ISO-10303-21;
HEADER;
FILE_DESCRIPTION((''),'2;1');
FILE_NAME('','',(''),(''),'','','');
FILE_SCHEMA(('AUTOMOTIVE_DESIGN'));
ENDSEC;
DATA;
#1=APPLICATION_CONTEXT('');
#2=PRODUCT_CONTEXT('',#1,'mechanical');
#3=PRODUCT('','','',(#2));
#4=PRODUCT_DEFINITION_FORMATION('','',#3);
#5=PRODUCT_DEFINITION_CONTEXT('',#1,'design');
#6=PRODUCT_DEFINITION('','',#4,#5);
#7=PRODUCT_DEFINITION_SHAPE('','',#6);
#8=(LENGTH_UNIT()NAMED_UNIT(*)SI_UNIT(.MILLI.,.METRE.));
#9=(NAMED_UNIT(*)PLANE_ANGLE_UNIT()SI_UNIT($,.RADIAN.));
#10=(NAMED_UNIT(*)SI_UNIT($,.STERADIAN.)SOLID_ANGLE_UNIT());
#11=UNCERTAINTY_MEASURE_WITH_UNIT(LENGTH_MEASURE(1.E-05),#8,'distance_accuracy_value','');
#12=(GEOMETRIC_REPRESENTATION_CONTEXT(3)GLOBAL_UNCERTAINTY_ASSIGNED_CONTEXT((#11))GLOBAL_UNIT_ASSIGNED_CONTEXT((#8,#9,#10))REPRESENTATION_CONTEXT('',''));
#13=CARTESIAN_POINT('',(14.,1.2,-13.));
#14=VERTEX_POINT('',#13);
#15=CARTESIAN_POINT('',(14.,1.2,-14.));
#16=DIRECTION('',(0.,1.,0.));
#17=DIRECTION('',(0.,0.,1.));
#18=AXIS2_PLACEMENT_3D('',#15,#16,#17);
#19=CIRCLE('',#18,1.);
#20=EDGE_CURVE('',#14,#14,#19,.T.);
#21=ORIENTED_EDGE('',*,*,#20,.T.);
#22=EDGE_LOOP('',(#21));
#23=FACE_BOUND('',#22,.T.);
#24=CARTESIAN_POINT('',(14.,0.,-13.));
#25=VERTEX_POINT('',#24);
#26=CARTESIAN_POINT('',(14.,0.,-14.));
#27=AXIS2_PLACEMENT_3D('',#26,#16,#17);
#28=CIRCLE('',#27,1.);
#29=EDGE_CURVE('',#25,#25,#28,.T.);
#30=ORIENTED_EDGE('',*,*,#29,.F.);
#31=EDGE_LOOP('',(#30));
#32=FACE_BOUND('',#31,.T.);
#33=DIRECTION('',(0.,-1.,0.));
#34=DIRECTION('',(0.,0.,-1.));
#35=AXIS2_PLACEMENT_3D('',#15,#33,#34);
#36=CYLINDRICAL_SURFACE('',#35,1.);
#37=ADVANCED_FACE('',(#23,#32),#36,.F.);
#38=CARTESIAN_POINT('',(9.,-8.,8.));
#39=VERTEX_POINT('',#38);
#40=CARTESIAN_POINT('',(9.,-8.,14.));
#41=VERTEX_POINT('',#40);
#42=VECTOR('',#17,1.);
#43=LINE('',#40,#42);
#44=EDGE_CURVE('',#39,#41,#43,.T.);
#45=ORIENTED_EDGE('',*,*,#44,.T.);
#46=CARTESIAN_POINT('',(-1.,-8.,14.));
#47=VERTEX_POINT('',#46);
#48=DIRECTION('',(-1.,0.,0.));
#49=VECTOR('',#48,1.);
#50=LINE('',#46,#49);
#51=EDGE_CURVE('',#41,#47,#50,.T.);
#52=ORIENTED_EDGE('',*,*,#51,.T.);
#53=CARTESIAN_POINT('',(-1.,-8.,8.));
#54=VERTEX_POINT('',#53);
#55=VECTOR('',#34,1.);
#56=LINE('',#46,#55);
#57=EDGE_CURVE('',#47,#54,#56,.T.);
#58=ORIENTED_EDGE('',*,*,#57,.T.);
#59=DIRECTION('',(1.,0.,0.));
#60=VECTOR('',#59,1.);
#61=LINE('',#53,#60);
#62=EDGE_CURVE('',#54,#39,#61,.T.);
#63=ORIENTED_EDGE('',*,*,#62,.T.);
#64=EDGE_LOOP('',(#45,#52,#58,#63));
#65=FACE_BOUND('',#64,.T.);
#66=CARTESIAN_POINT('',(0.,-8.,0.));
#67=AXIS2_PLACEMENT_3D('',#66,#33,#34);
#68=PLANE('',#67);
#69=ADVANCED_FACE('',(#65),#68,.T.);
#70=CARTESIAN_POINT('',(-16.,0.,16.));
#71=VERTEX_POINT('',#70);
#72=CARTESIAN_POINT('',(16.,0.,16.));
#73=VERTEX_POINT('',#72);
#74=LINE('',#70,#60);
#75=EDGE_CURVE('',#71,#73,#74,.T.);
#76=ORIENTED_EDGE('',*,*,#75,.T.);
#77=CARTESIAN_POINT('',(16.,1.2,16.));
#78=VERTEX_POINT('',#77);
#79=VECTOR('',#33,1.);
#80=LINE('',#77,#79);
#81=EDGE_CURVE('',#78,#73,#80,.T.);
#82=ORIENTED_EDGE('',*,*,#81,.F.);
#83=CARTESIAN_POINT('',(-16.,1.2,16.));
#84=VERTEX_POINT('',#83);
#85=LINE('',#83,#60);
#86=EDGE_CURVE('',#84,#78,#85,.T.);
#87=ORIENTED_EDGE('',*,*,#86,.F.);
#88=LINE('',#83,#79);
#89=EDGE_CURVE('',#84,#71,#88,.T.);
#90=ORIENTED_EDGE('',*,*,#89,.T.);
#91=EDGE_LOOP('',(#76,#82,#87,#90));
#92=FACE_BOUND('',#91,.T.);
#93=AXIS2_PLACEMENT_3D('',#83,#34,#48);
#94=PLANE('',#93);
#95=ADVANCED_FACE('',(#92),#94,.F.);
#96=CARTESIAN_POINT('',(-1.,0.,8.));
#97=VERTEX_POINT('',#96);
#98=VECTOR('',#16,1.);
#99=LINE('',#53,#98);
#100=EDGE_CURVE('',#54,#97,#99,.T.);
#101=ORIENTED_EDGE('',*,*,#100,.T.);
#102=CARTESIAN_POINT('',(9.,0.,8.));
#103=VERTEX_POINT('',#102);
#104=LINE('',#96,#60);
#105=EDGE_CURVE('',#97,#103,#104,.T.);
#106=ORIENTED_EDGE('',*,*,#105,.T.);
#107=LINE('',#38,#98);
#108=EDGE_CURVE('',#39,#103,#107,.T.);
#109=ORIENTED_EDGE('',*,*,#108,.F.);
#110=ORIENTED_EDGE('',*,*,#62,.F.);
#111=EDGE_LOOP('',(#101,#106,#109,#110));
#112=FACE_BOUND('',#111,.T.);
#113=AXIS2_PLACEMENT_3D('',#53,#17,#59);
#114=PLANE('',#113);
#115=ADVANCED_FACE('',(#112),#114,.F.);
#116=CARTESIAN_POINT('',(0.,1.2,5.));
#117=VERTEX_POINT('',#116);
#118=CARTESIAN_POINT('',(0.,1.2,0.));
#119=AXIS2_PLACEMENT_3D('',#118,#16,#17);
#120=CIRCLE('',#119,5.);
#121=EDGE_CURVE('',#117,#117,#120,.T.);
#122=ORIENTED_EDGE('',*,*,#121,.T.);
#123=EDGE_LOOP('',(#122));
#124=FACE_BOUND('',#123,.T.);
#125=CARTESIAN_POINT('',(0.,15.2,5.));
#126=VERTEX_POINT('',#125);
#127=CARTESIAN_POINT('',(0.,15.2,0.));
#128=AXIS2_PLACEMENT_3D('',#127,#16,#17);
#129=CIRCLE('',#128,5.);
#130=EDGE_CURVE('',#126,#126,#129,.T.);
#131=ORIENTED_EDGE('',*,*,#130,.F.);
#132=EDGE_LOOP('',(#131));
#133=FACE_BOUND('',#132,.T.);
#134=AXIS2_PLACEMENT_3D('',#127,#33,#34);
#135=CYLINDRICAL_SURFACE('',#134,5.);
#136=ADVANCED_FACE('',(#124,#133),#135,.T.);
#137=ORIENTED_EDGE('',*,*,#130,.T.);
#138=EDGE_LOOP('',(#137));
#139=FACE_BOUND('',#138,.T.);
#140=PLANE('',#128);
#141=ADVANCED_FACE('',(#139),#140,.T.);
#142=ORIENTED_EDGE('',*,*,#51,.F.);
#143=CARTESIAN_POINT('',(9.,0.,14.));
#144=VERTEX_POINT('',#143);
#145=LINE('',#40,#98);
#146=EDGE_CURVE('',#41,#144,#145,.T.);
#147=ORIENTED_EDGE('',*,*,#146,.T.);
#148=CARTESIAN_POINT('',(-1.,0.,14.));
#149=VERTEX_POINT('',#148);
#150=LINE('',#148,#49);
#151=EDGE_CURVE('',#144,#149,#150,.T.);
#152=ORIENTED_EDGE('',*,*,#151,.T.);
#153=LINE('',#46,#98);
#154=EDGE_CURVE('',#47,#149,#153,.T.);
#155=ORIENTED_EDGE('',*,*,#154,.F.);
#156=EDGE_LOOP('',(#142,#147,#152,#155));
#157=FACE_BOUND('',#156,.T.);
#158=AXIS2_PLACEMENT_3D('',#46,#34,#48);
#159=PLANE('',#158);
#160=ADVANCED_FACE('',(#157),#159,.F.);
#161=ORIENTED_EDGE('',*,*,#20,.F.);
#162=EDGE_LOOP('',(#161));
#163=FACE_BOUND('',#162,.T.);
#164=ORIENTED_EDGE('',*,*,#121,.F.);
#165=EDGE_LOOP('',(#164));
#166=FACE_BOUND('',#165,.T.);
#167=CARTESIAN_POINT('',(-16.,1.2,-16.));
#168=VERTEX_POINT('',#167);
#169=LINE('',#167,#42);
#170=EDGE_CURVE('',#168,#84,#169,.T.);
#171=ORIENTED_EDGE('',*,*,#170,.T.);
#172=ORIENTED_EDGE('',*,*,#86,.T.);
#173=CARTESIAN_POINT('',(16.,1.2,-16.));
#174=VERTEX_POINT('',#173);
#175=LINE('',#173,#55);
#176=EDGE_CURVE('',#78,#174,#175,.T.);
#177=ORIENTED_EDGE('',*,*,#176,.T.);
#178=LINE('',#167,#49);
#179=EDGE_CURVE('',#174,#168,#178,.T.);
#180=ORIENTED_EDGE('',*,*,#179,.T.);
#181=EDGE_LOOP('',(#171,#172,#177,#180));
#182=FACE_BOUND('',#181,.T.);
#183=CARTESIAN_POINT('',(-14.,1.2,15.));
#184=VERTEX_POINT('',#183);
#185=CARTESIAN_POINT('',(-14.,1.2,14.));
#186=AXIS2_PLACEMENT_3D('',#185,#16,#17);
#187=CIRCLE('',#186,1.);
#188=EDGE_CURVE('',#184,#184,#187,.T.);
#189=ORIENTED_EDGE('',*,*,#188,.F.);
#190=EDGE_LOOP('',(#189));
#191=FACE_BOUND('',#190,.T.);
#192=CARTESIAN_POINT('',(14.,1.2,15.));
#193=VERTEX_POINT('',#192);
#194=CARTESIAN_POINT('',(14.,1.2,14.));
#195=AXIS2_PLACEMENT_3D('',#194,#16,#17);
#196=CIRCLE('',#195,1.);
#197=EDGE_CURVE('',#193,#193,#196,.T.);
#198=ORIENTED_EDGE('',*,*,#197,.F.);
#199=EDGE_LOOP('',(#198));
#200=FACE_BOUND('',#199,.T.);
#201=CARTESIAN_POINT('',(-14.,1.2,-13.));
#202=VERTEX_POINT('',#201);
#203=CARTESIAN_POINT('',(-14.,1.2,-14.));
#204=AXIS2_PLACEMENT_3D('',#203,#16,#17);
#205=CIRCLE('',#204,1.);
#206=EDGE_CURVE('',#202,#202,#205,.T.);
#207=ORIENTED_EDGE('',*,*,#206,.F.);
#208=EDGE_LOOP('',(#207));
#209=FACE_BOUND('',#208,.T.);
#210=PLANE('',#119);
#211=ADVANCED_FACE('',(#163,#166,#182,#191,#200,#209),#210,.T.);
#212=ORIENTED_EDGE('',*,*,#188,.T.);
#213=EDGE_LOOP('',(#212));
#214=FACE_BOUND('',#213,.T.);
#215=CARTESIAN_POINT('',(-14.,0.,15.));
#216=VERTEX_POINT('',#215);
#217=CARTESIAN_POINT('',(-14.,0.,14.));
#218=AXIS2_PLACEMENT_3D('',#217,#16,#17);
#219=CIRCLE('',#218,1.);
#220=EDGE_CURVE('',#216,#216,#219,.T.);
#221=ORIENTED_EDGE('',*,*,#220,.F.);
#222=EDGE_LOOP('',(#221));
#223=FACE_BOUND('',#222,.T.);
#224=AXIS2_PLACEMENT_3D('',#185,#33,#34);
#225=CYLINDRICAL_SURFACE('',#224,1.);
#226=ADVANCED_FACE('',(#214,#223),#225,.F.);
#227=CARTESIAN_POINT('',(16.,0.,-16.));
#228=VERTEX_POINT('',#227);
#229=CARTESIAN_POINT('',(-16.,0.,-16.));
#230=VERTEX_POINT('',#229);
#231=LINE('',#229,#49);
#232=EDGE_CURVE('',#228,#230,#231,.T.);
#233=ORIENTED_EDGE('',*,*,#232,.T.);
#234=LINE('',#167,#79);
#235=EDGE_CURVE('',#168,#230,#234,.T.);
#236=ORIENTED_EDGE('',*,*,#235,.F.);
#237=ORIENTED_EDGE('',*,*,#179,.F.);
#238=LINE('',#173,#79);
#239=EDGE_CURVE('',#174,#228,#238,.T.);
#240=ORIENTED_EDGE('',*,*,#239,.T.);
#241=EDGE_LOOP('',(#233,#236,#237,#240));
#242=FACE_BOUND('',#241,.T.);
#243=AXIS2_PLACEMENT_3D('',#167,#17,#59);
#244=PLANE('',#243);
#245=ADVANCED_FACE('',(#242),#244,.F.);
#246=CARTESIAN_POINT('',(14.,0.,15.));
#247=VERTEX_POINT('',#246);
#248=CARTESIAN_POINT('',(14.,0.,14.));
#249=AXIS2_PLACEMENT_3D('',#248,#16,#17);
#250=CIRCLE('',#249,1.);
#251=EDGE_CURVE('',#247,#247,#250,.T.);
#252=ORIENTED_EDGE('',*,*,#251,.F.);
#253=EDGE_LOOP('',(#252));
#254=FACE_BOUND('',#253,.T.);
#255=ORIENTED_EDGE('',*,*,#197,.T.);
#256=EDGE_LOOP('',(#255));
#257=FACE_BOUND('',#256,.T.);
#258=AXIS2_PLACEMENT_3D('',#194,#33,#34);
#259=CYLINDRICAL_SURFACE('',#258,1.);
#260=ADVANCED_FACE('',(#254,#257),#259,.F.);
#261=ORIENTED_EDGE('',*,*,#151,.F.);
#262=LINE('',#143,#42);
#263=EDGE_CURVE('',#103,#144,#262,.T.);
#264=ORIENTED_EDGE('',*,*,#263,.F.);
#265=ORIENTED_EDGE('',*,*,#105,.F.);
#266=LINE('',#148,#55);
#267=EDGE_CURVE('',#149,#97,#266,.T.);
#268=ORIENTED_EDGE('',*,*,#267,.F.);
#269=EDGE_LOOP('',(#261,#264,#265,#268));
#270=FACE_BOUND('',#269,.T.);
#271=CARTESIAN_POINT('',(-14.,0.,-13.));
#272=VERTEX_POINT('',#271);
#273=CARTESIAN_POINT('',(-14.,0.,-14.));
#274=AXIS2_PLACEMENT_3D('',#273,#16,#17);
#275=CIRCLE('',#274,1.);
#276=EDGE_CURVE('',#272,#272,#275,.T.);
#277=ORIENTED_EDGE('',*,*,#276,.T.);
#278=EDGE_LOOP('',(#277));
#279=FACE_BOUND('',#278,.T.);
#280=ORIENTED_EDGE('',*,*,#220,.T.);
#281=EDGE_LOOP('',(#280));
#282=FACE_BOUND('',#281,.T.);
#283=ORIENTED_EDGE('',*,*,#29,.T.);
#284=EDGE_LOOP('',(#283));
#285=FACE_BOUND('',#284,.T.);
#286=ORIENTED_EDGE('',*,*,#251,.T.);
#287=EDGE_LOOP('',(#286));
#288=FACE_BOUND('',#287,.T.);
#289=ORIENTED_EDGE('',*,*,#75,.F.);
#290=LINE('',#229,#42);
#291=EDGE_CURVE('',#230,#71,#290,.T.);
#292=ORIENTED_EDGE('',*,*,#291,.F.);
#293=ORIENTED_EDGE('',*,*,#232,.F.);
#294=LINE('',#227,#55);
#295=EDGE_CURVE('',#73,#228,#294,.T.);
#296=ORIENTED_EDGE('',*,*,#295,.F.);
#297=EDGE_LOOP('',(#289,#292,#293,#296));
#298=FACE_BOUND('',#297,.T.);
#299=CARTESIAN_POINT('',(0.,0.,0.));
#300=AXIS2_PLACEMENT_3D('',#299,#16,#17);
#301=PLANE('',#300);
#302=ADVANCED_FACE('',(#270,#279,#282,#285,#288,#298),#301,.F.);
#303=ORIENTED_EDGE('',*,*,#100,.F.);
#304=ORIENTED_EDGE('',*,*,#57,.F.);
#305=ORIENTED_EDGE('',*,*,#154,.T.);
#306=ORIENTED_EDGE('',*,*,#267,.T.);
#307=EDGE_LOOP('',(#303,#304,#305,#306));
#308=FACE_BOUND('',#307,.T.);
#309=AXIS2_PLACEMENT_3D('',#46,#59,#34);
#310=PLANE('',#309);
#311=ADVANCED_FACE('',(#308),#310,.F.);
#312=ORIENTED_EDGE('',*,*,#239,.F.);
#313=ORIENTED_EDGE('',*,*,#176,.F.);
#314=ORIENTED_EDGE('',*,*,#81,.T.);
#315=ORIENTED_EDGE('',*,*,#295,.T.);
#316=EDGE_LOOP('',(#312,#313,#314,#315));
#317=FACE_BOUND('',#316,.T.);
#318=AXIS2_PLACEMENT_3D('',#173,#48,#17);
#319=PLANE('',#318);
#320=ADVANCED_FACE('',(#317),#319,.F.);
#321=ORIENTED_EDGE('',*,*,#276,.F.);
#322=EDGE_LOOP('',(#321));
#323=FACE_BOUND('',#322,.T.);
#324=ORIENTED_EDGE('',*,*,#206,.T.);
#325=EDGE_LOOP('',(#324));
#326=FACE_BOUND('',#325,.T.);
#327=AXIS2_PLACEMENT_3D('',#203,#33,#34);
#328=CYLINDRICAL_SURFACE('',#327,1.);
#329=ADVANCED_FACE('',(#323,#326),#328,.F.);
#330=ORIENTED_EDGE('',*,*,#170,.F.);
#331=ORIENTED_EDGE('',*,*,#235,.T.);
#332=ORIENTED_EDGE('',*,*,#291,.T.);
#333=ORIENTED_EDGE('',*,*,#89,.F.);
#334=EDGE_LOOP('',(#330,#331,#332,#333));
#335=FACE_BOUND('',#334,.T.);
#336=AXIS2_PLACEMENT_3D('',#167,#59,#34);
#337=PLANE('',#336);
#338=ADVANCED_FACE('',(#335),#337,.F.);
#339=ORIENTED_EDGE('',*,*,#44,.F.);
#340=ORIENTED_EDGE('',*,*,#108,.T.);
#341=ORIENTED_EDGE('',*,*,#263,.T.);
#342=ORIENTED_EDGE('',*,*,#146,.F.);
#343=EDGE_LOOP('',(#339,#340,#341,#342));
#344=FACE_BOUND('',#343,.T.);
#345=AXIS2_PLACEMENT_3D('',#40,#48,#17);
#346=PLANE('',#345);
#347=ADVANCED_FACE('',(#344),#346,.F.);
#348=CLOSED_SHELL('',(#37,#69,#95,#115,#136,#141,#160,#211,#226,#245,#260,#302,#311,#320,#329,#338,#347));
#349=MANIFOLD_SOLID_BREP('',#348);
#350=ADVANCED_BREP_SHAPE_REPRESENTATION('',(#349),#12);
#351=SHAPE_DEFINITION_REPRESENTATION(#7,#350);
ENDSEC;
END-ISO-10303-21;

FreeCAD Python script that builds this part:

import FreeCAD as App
import Part
import Sketcher
from FreeCAD import Vector

doc = App.newDocument("Part")
body = doc.addObject("PartDesign::Body", "Body")

# Sketch on XZ plane
sketch1 = body.newObject("Sketcher::SketchObject", "Sketch")
sketch1.AttachmentSupport = (doc.getObject("XZ_Plane"), [""])
sketch1.MapMode = "FlatFace"
sketch1.addGeometry(Part.LineSegment(Vector(-16, -16, 0), Vector(-16, 16, 0)), False)
sketch1.addGeometry(Part.LineSegment(Vector(-16, 16, 0), Vector(16, 16, 0)), False)
sketch1.addGeometry(Part.LineSegment(Vector(16, 16, 0), Vector(16, -16, 0)), False)
sketch1.addGeometry(Part.LineSegment(Vector(16, -16, 0), Vector(-16, -16, 0)), False)
sketch1.addGeometry(Part.Circle(Vector(-14, 14, 0), Vector(0, 0, 1), 1), False)
sketch1.addGeometry(Part.Circle(Vector(14, 14, 0), Vector(0, 0, 1), 1), False)
sketch1.addGeometry(Part.Circle(Vector(-14, -14, 0), Vector(0, 0, 1), 1), False)
sketch1.addGeometry(Part.Circle(Vector(14, -14, 0), Vector(0, 0, 1), 1), False)
sketch1.addConstraint(Sketcher.Constraint("Coincident", 0, 2, 1, 1))
sketch1.addConstraint(Sketcher.Constraint("Coincident", 1, 2, 2, 1))
sketch1.addConstraint(Sketcher.Constraint("Coincident", 2, 2, 3, 1))
sketch1.addConstraint(Sketcher.Constraint("Coincident", 3, 2, 0, 1))
sketch1.addConstraint(Sketcher.Constraint("Vertical", 0))
sketch1.addConstraint(Sketcher.Constraint("Horizontal", 1))
sketch1.addConstraint(Sketcher.Constraint("Vertical", 2))
sketch1.addConstraint(Sketcher.Constraint("Horizontal", 3))
sketch1.addConstraint(Sketcher.Constraint("Equal", 4, 5))
sketch1.addConstraint(Sketcher.Constraint("Equal", 5, 6))
sketch1.addConstraint(Sketcher.Constraint("Equal", 6, 7))
sketch1.addConstraint(Sketcher.Constraint("Symmetric", 5, 3, 6, 3, -1, 1))
sketch1.addConstraint(Sketcher.Constraint("Symmetric", 4, 3, 7, 3, -1, 1))
sketch1.addConstraint(Sketcher.Constraint("Symmetric", 0, 2, 2, 2, -1, 1))
sketch1.addConstraint(Sketcher.Constraint("Symmetric", 4, 3, 5, 3, -2))
sketch1.addConstraint(Sketcher.Constraint("Equal", 3, 0))
sketch1.addConstraint(Sketcher.Constraint("Diameter", 4, 2.0))
sketch1.addConstraint(Sketcher.Constraint("DistanceX", 1, 1, 1, 2, 32.0))
sketch1.addConstraint(Sketcher.Constraint("DistanceX", 4, 3, -1, 1, 14.0))
sketch1.addConstraint(Sketcher.Constraint("DistanceY", -1, 1, 4, 3, 14.0))
pad1 = body.newObject("PartDesign::Pad", "Pad")
pad1.Profile = sketch1
pad1.Length = 1.2
pad1.Reversed = True

# Sketch on XZ plane
sketch2 = body.newObject("Sketcher::SketchObject", "Sketch001")
sketch2.AttachmentSupport = (doc.getObject("XZ_Plane"), [""])
sketch2.MapMode = "FlatFace"
sketch2.AttachmentOffset = App.Placement(Vector(0, 0, -1.2), App.Rotation())
sketch2.addGeometry(Part.Circle(Vector(0, 0, 0), Vector(0, 0, 1), 5), False)
sketch2.addConstraint(Sketcher.Constraint("Coincident", 0, 3, -1, 1))
sketch2.addConstraint(Sketcher.Constraint("Diameter", 0, 10.0))
pad2 = body.newObject("PartDesign::Pad", "Pad001")
pad2.Profile = sketch2
pad2.Length = 14
pad2.Reversed = True

# Sketch on XZ plane
sketch3 = body.newObject("Sketcher::SketchObject", "Sketch002")
sketch3.AttachmentSupport = (doc.getObject("XZ_Plane"), [""])
sketch3.MapMode = "FlatFace"
sketch3.addGeometry(Part.LineSegment(Vector(-1, 14, 0), Vector(-1, 8, 0)), False)
sketch3.addGeometry(Part.LineSegment(Vector(-1, 8, 0), Vector(9, 8, 0)), False)
sketch3.addGeometry(Part.LineSegment(Vector(9, 8, 0), Vector(9, 14, 0)), False)
sketch3.addGeometry(Part.LineSegment(Vector(9, 14, 0), Vector(-1, 14, 0)), False)
sketch3.addConstraint(Sketcher.Constraint("Coincident", 0, 2, 1, 1))
sketch3.addConstraint(Sketcher.Constraint("Coincident", 1, 2, 2, 1))
sketch3.addConstraint(Sketcher.Constraint("Coincident", 2, 2, 3, 1))
sketch3.addConstraint(Sketcher.Constraint("Coincident", 3, 2, 0, 1))
sketch3.addConstraint(Sketcher.Constraint("Vertical", 0))
sketch3.addConstraint(Sketcher.Constraint("Horizontal", 1))
sketch3.addConstraint(Sketcher.Constraint("Vertical", 2))
sketch3.addConstraint(Sketcher.Constraint("Horizontal", 3))
sketch3.addConstraint(Sketcher.Constraint("DistanceX", 1, 1, 1, 2, 10.0))
sketch3.addConstraint(Sketcher.Constraint("DistanceY", 0, 2, 0, 1, 6.0))
sketch3.addConstraint(Sketcher.Constraint("DistanceX", 0, 2, -1, 1, 1.0))
sketch3.addConstraint(Sketcher.Constraint("DistanceY", -1, 1, 0, 2, 8.0))
pad3 = body.newObject("PartDesign::Pad", "Pad002")
pad3.Profile = sketch3
pad3.Length = 8

doc.recompute()
